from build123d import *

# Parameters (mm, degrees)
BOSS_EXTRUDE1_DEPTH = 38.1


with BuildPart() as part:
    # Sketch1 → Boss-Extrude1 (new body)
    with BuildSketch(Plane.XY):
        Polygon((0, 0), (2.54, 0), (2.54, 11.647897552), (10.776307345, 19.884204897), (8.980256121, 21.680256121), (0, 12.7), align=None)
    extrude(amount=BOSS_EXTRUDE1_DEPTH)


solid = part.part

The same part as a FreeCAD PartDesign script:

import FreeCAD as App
import Part
import Sketcher

V = App.Vector
Q = App.Units.Quantity

doc = App.newDocument("Part")
params = doc.addObject("Spreadsheet::Sheet", "Params")
for row, (alias, value) in enumerate([
    ("sketch1_width", "0.1 in"),
    ("sketch1_height", "0.5 in"),
    ("sketch1_length", "0.1 in"),
    ("sketch1_length2", "0.5 in"),
    ("pad1_length", "1.5 in"),
], start=1):
    params.set(f"A{row}", alias)
    params.set(f"B{row}", "=" + value)
    params.setAlias(f"B{row}", alias)

body = doc.addObject("PartDesign::Body", "Body")

# Sketch on XY plane
sketch1 = body.newObject("Sketcher::SketchObject", "Sketch")
sketch1.AttachmentSupport = (doc.getObject("XY_Plane"), [""])
sketch1.MapMode = "FlatFace"
sketch1.addGeometry(Part.LineSegment(V(0, 0, 0), V(2.54, 0, 0)), False)
sketch1.addGeometry(Part.LineSegment(V(2.54, 0, 0), V(2.54, 11.647898, 0)), False)
sketch1.addGeometry(Part.LineSegment(V(2.54, 11.647898, 0), V(10.776307, 19.884205, 0)), False)
sketch1.addGeometry(Part.LineSegment(V(10.776307, 19.884205, 0), V(8.980256, 21.680256, 0)), False)
sketch1.addGeometry(Part.LineSegment(V(8.980256, 21.680256, 0), V(0, 12.7, 0)), False)
sketch1.addGeometry(Part.LineSegment(V(0, 12.7, 0), V(0, 0, 0)), False)
sketch1.addConstraint(Sketcher.Constraint("Coincident", 0, 2, 1, 1))
sketch1.addConstraint(Sketcher.Constraint("Coincident", 1, 2, 2, 1))
sketch1.addConstraint(Sketcher.Constraint("Coincident", 2, 2, 3, 1))
sketch1.addConstraint(Sketcher.Constraint("Coincident", 3, 2, 4, 1))
sketch1.addConstraint(Sketcher.Constraint("Coincident", 4, 2, 5, 1))
sketch1.addConstraint(Sketcher.Constraint("Coincident", 5, 2, 0, 1))
sketch1.addConstraint(Sketcher.Constraint("Horizontal", 0))
sketch1.addConstraint(Sketcher.Constraint("Vertical", 1))
sketch1.addConstraint(Sketcher.Constraint("Vertical", 5))
sketch1.addConstraint(Sketcher.Constraint("Coincident", 5, 2, -1, 1))
sketch1.addConstraint(Sketcher.Constraint("Perpendicular", 2, 3))
sketch1.addConstraint(Sketcher.Constraint("Perpendicular", 3, 4))
sketch1.addConstraint(Sketcher.Constraint("DistanceX", 0, 1, 0, 2, Q("0.1 in")))
sketch1.addConstraint(Sketcher.Constraint("DistanceY", 5, 2, 5, 1, Q("0.5 in")))
sketch1.addConstraint(Sketcher.Constraint("Angle", 2, Q("45 deg")))
sketch1.addConstraint(Sketcher.Constraint("Distance", 3, Q("0.1 in")))
sketch1.addConstraint(Sketcher.Constraint("Distance", 4, Q("0.5 in")))
sketch1.setExpression("Constraints[12]", "Params.sketch1_width")
sketch1.setExpression("Constraints[13]", "Params.sketch1_height")
sketch1.setExpression("Constraints[15]", "Params.sketch1_length")
sketch1.setExpression("Constraints[16]", "Params.sketch1_length2")
pad1 = body.newObject("PartDesign::Pad", "Pad")
pad1.Profile = sketch1
pad1.setExpression("Length", "Params.pad1_length")

doc.recompute()
